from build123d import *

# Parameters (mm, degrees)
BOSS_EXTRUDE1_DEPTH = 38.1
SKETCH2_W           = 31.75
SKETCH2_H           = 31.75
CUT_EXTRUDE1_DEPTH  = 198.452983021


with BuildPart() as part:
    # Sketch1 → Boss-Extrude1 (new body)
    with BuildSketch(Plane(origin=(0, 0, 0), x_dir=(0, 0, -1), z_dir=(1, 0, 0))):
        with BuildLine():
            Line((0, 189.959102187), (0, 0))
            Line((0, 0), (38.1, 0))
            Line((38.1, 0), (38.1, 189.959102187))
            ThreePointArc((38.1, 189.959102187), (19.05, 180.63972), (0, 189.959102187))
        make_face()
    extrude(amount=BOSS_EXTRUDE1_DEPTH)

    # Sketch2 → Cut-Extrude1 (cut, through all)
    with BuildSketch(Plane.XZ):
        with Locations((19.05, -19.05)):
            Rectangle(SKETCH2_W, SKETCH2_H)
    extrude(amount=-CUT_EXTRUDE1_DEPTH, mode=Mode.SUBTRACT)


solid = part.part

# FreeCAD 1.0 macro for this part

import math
import FreeCAD as App
import Part
import Sketcher
Q = App.Units.Quantity


def add_polygon(sketch, points):
    """Adds a closed chain of lines whose ends are joined by coincident constraints."""
    first, n = sketch.GeometryCount, len(points)
    for a, b in zip(points, points[1:] + points[:1]):
        sketch.addGeometry(Part.LineSegment(App.Vector(*a, 0), App.Vector(*b, 0)), False)
    for i in range(n):
        sketch.addConstraint(Sketcher.Constraint("Coincident", first + i, 2, first + (i + 1) % n, 1))

doc = App.newDocument("Part")
body = doc.addObject("PartDesign::Body", "Body")

# Sketch on YZ plane
sketch1 = body.newObject("Sketcher::SketchObject", "Sketch")
sketch1.AttachmentSupport = (doc.getObject("YZ_Plane"), [""])
sketch1.MapMode = "FlatFace"
sketch1.addGeometry(Part.LineSegment(App.Vector(190, 0, 0), App.Vector(0, 0, 0)), False)
sketch1.addGeometry(Part.LineSegment(App.Vector(0, 0, 0), App.Vector(0, -38, 0)), False)
sketch1.addGeometry(Part.LineSegment(App.Vector(0, -38, 0), App.Vector(190, -38, 0)), False)
sketch1.addGeometry(Part.ArcOfCircle(Part.Circle(App.Vector(205, -19, 0), App.Vector(0, 0, 1), 24), math.radians(128), math.radians(232)), False)
sketch1.addConstraint(Sketcher.Constraint("Coincident", 0, 2, 1, 1))
sketch1.addConstraint(Sketcher.Constraint("Coincident", 1, 2, 2, 1))
sketch1.addConstraint(Sketcher.Constraint("Coincident", 2, 2, 3, 2))
sketch1.addConstraint(Sketcher.Constraint("Coincident", 3, 1, 0, 1))
sketch1.addConstraint(Sketcher.Constraint("Horizontal", 0))
sketch1.addConstraint(Sketcher.Constraint("Vertical", 1))
sketch1.addConstraint(Sketcher.Constraint("Horizontal", 2))
sketch1.addConstraint(Sketcher.Constraint("Coincident", 0, 2, -1, 1))
sketch1.addConstraint(Sketcher.Constraint("Vertical", 2, 2, 3, 1))
sketch1.addConstraint(Sketcher.Constraint("Radius", 3, Q("0.95 in")))
sketch1.addConstraint(Sketcher.Constraint("DistanceY", 1, 2, 1, 1, Q("1.5 in")))
sketch1.addConstraint(Sketcher.Constraint("DistanceX", -1, 1, 3, 3, Q("8.0618 in")))
pad1 = body.newObject("PartDesign::Pad", "Pad")
pad1.Profile = sketch1
pad1.Length = Q("1.5 in")

# Sketch on XZ plane
sketch2 = body.newObject("Sketcher::SketchObject", "Sketch001")
sketch2.AttachmentSupport = (doc.getObject("XZ_Plane"), [""])
sketch2.MapMode = "FlatFace"
add_polygon(sketch2, [(3, -3), (3, -35), (35, -35), (35, -3)])  # lines 0-3
sketch2.addConstraint(Sketcher.Constraint("Vertical", 0))
sketch2.addConstraint(Sketcher.Constraint("Horizontal", 1))
sketch2.addConstraint(Sketcher.Constraint("Vertical", 2))
sketch2.addConstraint(Sketcher.Constraint("Horizontal", 3))
sketch2.addConstraint(Sketcher.Constraint("Equal", 3, 0))
sketch2.addConstraint(Sketcher.Constraint("DistanceX", 1, 1, 1, 2, Q("1.25 in")))
sketch2.addConstraint(Sketcher.Constraint("DistanceX", -1, 1, 0, 2, Q("0.125 in")))
sketch2.addConstraint(Sketcher.Constraint("DistanceY", 0, 2, -1, 1, Q("1.375 in")))
pocket1 = body.newObject("PartDesign::Pocket", "Pocket")
pocket1.Profile = sketch2
pocket1.Type = "ThroughAll"

doc.recompute()
